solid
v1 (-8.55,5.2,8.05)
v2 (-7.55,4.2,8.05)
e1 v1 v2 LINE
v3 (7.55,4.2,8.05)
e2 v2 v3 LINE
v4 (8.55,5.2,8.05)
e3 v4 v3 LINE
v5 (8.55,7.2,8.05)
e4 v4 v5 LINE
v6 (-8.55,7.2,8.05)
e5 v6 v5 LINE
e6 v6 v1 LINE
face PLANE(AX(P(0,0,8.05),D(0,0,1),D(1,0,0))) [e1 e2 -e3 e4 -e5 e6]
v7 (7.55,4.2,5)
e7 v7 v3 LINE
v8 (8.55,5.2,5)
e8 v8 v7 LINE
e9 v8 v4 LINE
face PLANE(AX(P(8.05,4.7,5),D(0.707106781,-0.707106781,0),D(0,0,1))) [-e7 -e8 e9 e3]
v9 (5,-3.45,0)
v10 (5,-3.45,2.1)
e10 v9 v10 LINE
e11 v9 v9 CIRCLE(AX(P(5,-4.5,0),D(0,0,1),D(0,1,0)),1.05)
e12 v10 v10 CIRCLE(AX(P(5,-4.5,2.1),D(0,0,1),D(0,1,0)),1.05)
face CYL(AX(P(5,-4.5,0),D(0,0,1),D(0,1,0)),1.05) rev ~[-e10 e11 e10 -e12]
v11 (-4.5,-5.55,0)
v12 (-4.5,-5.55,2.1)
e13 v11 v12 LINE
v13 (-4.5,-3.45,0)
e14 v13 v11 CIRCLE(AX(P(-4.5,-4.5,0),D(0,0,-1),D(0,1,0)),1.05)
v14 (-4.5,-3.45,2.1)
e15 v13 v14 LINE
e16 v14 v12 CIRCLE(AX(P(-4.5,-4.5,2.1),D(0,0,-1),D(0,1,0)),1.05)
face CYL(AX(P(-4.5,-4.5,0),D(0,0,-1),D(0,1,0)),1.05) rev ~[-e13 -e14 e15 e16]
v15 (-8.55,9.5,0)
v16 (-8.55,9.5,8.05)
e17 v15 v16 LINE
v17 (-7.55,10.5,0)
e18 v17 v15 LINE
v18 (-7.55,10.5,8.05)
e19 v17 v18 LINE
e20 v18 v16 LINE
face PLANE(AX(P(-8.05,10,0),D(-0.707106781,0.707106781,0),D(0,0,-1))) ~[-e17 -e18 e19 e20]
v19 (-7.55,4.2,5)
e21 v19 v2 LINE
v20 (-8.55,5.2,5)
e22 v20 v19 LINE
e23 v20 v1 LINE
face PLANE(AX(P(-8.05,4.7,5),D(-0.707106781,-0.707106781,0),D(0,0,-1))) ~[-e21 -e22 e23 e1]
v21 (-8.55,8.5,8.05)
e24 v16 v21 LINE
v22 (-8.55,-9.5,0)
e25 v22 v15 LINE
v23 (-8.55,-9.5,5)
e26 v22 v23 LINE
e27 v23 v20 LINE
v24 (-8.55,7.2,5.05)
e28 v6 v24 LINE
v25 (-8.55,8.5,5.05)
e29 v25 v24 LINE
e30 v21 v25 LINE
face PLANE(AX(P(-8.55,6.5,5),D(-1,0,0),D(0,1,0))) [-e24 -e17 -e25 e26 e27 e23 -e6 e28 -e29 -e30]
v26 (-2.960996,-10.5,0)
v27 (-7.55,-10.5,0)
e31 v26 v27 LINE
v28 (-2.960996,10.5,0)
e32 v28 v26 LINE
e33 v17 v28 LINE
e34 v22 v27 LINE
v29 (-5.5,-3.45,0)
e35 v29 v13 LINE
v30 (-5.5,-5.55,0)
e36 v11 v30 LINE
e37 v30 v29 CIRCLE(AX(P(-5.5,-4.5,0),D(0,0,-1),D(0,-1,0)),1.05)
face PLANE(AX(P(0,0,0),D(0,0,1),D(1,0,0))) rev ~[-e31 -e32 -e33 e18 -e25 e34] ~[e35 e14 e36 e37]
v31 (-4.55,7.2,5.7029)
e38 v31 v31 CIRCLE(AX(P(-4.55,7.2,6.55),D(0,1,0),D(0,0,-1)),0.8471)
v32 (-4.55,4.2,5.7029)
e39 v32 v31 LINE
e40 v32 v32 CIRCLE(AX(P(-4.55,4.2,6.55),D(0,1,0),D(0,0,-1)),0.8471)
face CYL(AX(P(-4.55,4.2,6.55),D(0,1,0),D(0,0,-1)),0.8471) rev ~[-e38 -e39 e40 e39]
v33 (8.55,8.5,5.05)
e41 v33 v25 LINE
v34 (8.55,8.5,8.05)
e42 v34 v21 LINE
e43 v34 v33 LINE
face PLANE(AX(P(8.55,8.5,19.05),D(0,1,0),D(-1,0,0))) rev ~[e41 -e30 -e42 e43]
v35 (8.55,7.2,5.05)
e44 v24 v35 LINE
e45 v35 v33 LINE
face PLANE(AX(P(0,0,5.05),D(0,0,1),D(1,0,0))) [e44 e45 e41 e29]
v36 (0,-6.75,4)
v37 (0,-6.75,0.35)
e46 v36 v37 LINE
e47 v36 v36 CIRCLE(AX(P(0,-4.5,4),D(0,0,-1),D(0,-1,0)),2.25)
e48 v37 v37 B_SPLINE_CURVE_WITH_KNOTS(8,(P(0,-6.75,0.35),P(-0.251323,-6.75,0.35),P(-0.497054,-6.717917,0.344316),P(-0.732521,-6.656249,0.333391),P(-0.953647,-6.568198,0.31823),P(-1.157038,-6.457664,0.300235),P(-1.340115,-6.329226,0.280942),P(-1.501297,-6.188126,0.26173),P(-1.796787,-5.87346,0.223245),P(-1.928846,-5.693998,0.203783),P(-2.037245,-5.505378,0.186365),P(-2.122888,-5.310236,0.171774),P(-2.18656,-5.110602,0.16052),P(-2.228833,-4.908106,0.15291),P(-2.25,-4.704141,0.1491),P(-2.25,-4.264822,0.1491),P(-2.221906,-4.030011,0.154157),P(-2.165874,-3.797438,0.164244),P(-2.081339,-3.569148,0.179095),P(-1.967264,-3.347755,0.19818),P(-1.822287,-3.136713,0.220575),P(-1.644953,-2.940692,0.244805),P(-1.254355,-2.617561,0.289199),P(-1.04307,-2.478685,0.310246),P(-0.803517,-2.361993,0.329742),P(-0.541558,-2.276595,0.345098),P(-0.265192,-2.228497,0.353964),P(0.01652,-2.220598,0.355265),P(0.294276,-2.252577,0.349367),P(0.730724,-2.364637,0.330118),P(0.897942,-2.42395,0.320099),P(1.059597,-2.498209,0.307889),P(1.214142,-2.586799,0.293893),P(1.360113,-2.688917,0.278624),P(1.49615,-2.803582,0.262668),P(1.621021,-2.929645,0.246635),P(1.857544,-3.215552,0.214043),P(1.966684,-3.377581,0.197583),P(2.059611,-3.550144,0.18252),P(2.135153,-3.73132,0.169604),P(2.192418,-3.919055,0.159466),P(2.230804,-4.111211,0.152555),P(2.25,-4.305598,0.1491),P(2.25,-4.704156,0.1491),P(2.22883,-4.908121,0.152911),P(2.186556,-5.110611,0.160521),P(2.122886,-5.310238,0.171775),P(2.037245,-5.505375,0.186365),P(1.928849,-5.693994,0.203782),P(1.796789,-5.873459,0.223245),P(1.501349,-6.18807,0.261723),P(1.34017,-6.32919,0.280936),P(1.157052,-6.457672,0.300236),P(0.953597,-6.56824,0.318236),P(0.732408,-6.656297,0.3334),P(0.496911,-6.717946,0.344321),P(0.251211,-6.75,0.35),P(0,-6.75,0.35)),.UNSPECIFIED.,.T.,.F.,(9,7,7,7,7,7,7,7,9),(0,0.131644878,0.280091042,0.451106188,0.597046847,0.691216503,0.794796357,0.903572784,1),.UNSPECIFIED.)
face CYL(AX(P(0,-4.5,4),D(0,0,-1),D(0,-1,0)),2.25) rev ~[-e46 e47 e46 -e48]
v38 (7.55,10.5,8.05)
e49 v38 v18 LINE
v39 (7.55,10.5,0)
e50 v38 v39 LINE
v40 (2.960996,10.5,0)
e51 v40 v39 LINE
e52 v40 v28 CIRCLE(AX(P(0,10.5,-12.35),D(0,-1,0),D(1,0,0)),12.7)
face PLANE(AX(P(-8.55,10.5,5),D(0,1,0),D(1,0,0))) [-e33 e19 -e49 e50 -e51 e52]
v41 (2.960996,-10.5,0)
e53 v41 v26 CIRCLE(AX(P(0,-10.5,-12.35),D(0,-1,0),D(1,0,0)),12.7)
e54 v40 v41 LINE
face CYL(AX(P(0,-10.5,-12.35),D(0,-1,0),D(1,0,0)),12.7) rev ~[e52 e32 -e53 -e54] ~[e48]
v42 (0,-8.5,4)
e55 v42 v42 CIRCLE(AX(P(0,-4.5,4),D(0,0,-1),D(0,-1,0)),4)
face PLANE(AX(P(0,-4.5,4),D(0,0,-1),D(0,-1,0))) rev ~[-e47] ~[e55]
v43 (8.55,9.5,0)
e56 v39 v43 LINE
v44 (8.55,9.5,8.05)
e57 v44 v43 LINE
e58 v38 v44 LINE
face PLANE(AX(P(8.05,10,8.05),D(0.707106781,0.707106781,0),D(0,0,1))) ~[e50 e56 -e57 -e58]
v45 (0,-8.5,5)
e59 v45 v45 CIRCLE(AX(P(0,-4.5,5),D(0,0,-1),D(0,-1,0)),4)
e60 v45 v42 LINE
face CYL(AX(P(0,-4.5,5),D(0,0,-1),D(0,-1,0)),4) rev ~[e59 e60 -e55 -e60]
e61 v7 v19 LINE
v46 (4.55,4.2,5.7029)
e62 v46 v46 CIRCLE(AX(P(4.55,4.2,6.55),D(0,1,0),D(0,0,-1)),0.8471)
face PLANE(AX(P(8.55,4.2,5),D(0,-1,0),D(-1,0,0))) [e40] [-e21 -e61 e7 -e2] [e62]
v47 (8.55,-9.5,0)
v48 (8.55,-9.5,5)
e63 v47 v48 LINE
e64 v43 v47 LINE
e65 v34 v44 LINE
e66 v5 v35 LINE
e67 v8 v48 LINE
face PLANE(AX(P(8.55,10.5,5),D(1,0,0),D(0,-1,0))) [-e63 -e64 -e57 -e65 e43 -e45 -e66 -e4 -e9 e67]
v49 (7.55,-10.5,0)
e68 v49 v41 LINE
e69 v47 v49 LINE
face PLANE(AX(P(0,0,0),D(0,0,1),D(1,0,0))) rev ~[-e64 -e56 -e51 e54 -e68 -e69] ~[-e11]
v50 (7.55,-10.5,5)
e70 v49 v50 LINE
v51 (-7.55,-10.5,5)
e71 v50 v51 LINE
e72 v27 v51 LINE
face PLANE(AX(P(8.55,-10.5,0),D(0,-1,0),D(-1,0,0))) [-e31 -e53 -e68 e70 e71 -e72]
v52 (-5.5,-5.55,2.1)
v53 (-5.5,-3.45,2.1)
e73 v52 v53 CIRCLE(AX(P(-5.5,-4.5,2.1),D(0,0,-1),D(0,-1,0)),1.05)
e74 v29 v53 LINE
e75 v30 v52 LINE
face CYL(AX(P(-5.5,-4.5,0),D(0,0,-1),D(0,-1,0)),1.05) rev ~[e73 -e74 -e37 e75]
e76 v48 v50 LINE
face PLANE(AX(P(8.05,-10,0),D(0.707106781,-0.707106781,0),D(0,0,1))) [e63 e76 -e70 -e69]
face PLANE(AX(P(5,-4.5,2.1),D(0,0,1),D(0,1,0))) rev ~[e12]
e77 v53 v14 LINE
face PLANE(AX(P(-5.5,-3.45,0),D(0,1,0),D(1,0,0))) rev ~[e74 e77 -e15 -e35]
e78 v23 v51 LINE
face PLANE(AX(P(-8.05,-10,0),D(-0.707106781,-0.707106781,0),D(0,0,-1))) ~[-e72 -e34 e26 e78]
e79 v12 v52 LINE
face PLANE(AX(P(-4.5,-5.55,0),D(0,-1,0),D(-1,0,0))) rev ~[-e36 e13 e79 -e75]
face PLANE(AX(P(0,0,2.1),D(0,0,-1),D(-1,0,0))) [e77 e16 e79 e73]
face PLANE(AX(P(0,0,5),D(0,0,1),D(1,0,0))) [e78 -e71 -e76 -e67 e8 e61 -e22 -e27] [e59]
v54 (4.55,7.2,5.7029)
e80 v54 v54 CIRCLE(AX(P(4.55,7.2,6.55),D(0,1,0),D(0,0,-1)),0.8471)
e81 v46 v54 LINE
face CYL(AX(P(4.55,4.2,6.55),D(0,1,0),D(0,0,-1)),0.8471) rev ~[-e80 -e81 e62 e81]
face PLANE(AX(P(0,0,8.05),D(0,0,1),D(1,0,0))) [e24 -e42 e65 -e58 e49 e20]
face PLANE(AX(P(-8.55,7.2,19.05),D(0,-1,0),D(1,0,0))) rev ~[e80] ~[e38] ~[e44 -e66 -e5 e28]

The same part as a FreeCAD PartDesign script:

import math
import FreeCAD as App
import Part
import Sketcher

V = App.Vector
Q = App.Units.Quantity


def edges_at(feature, points):
    """Names of the edges that pass closest to the given points."""
    edges = feature.Shape.Edges
    near = lambda p: min(range(len(edges)), key=lambda i: edges[i].distToShape(Part.Vertex(*p))[0])
    return sorted({f"Edge{near(p) + 1}" for p in points})

doc = App.newDocument("Part")
body = doc.addObject("PartDesign::Body", "Body")

sketch1 = doc.addObject("Sketcher::SketchObject", "Sketch")
body.addObject(sketch1)
sketch1.AttachmentSupport = (doc.XY_Plane, [""])
sketch1.MapMode = "FlatFace"
sketch1.addGeometry(Part.LineSegment(V(9, 10, 0), V(-9, 10, 0)), False)
sketch1.addGeometry(Part.LineSegment(V(-9, 10, 0), V(-9, -10, 0)), False)
sketch1.addGeometry(Part.LineSegment(V(-9, -10, 0), V(9, -10, 0)), False)
sketch1.addGeometry(Part.LineSegment(V(9, -10, 0), V(9, 10, 0)), False)
sketch1.addConstraint(Sketcher.Constraint("Coincident", 0, 2, 1, 1))
sketch1.addConstraint(Sketcher.Constraint("Coincident", 1, 2, 2, 1))
sketch1.addConstraint(Sketcher.Constraint("Coincident", 2, 2, 3, 1))
sketch1.addConstraint(Sketcher.Constraint("Coincident", 3, 2, 0, 1))
sketch1.addConstraint(Sketcher.Constraint("Horizontal", 0))
sketch1.addConstraint(Sketcher.Constraint("Vertical", 1))
sketch1.addConstraint(Sketcher.Constraint("Horizontal", 2))
sketch1.addConstraint(Sketcher.Constraint("Vertical", 3))
sketch1.addConstraint(Sketcher.Constraint("Symmetric", 0, 2, 2, 2, -1, 1))
sketch1.addConstraint(Sketcher.Constraint("DistanceY", 1, 2, 1, 1, Q("21 mm")))
sketch1.addConstraint(Sketcher.Constraint("DistanceX", 0, 2, 0, 1, Q("17.1 mm")))
pad1 = doc.addObject("PartDesign::Pad", "Pad")
body.addObject(pad1)
pad1.Profile = sketch1
pad1.Length = 5

sketch2 = doc.addObject("Sketcher::SketchObject", "Sketch001")
body.addObject(sketch2)
sketch2.AttachmentSupport = (doc.XY_Plane, [""])
sketch2.MapMode = "FlatFace"
sketch2.AttachmentOffset = App.Placement(V(0, 0, 5), App.Rotation())
sketch2.addGeometry(Part.Circle(V(0, -4.5, 0), V(0, 0, 1), 2.2), False)
sketch2.addConstraint(Sketcher.Constraint("PointOnObject", 0, 3, -2))
sketch2.addConstraint(Sketcher.Constraint("Diameter", 0, Q("4.5 mm")))
sketch2.addConstraint(Sketcher.Constraint("DistanceY", 0, 3, -1, 1, Q("4.5 mm")))
doc.recompute()
hole = doc.addObject("PartDesign::Hole", "Hole")
body.addObject(hole)
hole.Profile = sketch2
hole.ThreadType = "None"
hole.Diameter = 4.5
hole.DepthType = "Dimension"
hole.Depth = 5
hole.DrillPoint = "Flat"
hole.HoleCutType = "Counterbore"
hole.HoleCutDiameter = 8
hole.HoleCutDepth = 1

sketch3 = doc.addObject("Sketcher::SketchObject", "Sketch002")
body.addObject(sketch3)
sketch3.AttachmentSupport = (doc.XY_Plane, [""])
sketch3.MapMode = "FlatFace"
sketch3.AttachmentOffset = App.Placement(V(0, 0, 5), App.Rotation())
sketch3.addGeometry(Part.LineSegment(V(9, 10, 0), V(-9, 10, 0)), False)
sketch3.addGeometry(Part.LineSegment(V(-9, 10, 0), V(-9, 4, 0)), False)
sketch3.addGeometry(Part.LineSegment(V(-9, 4, 0), V(9, 4, 0)), False)
sketch3.addGeometry(Part.LineSegment(V(9, 4, 0), V(9, 10, 0)), False)
sketch3.addConstraint(Sketcher.Constraint("Coincident", 0, 2, 1, 1))
sketch3.addConstraint(Sketcher.Constraint("Coincident", 1, 2, 2, 1))
sketch3.addConstraint(Sketcher.Constraint("Coincident", 2, 2, 3, 1))
sketch3.addConstraint(Sketcher.Constraint("Coincident", 3, 2, 0, 1))
sketch3.addConstraint(Sketcher.Constraint("Horizontal", 0))
sketch3.addConstraint(Sketcher.Constraint("Vertical", 1))
sketch3.addConstraint(Sketcher.Constraint("Horizontal", 2))
sketch3.addConstraint(Sketcher.Constraint("Vertical", 3))
sketch3.addConstraint(Sketcher.Constraint("DistanceX", 0, 2, 0, 1, Q("17.1 mm")))
sketch3.addConstraint(Sketcher.Constraint("DistanceY", 1, 2, 1, 1, Q("6.3 mm")))
sketch3.addConstraint(Sketcher.Constraint("DistanceY", -1, 1, 0, 2, Q("10.5 mm")))
sketch3.addConstraint(Sketcher.Constraint("DistanceX", 0, 2, -1, 1, Q("8.55 mm")))
pad2 = doc.addObject("PartDesign::Pad", "Pad001")
body.addObject(pad2)
pad2.Profile = sketch3
pad2.Length = 14.05

sketch4 = doc.addObject("Sketcher::SketchObject", "Sketch003")
body.addObject(sketch4)
sketch4.AttachmentSupport = (doc.XY_Plane, [""])
sketch4.MapMode = "FlatFace"
sketch4.AttachmentOffset = App.Placement(V(0, 0, 19.05), App.Rotation())
sketch4.addGeometry(Part.LineSegment(V(-8.6, 8.5, 0), V(8.6, 8.5, 0)), False)
sketch4.addGeometry(Part.LineSegment(V(8.6, 8.5, 0), V(8.6, 10.5, 0)), False)
sketch4.addGeometry(Part.LineSegment(V(8.6, 10.5, 0), V(-8.6, 10.5, 0)), False)
sketch4.addGeometry(Part.LineSegment(V(-8.6, 10.5, 0), V(-8.6, 8.5, 0)), False)
sketch4.addGeometry(Part.LineSegment(V(8.6, 4.2, 0), V(8.6, 7.2, 0)), False)
sketch4.addGeometry(Part.LineSegment(V(8.6, 7.2, 0), V(-8.6, 7.2, 0)), False)
sketch4.addGeometry(Part.LineSegment(V(-8.6, 7.2, 0), V(-8.6, 4.2, 0)), False)
sketch4.addGeometry(Part.LineSegment(V(-8.6, 4.2, 0), V(8.6, 4.2, 0)), False)
sketch4.addConstraint(Sketcher.Constraint("Coincident", 0, 2, 1, 1))
sketch4.addConstraint(Sketcher.Constraint("Coincident", 1, 2, 2, 1))
sketch4.addConstraint(Sketcher.Constraint("Coincident", 2, 2, 3, 1))
sketch4.addConstraint(Sketcher.Constraint("Coincident", 3, 2, 0, 1))
sketch4.addConstraint(Sketcher.Constraint("Coincident", 4, 2, 5, 1))
sketch4.addConstraint(Sketcher.Constraint("Coincident", 5, 2, 6, 1))
sketch4.addConstraint(Sketcher.Constraint("Coincident", 6, 2, 7, 1))
sketch4.addConstraint(Sketcher.Constraint("Coincident", 7, 2, 4, 1))
sketch4.addConstraint(Sketcher.Constraint("Horizontal", 0))
sketch4.addConstraint(Sketcher.Constraint("Vertical", 1))
sketch4.addConstraint(Sketcher.Constraint("Horizontal", 2))
sketch4.addConstraint(Sketcher.Constraint("Vertical", 3))
sketch4.addConstraint(Sketcher.Constraint("Vertical", 4))
sketch4.addConstraint(Sketcher.Constraint("Horizontal", 5))
sketch4.addConstraint(Sketcher.Constraint("Vertical", 6))
sketch4.addConstraint(Sketcher.Constraint("Horizontal", 7))
sketch4.addConstraint(Sketcher.Constraint("Vertical", 1, 2, 4, 2))
sketch4.addConstraint(Sketcher.Constraint("Vertical", 3, 2, 5, 2))
sketch4.addConstraint(Sketcher.Constraint("DistanceY", 4, 1, 4, 2, Q("3 mm")))
sketch4.addConstraint(Sketcher.Constraint("DistanceX", 0, 1, 0, 2, Q("17.1 mm")))
sketch4.addConstraint(Sketcher.Constraint("DistanceY", 4, 2, 0, 2, Q("1.3 mm")))
sketch4.addConstraint(Sketcher.Constraint("DistanceY", 1, 1, 1, 2, Q("2 mm")))
sketch4.addConstraint(Sketcher.Constraint("DistanceY", -1, 1, 0, 2, Q("8.5 mm")))
sketch4.addConstraint(Sketcher.Constraint("DistanceX", -1, 1, 0, 2, Q("8.55 mm")))
pocket1 = doc.addObject("PartDesign::Pocket", "Pocket")
body.addObject(pocket1)
pocket1.Profile = sketch4
pocket1.Length = 11

sketch5 = doc.addObject("Sketcher::SketchObject", "Sketch004")
body.addObject(sketch5)
sketch5.AttachmentSupport = (doc.XY_Plane, [""])
sketch5.MapMode = "FlatFace"
sketch5.AttachmentOffset = App.Placement(V(0, 0, 19.05), App.Rotation())
sketch5.addGeometry(Part.LineSegment(V(8.6, 7.2, 0), V(8.6, 8.5, 0)), False)
sketch5.addGeometry(Part.LineSegment(V(8.6, 8.5, 0), V(-8.6, 8.5, 0)), False)
sketch5.addGeometry(Part.LineSegment(V(-8.6, 8.5, 0), V(-8.6, 7.2, 0)), False)
sketch5.addGeometry(Part.LineSegment(V(-8.6, 7.2, 0), V(8.6, 7.2, 0)), False)
sketch5.addConstraint(Sketcher.Constraint("Coincident", 0, 2, 1, 1))
sketch5.addConstraint(Sketcher.Constraint("Coincident", 1, 2, 2, 1))
sketch5.addConstraint(Sketcher.Constraint("Coincident", 2, 2, 3, 1))
sketch5.addConstraint(Sketcher.Constraint("Coincident", 3, 2, 0, 1))
sketch5.addConstraint(Sketcher.Constraint("Vertical", 0))
sketch5.addConstraint(Sketcher.Constraint("Horizontal", 1))
sketch5.addConstraint(Sketcher.Constraint("Vertical", 2))
sketch5.addConstraint(Sketcher.Constraint("Horizontal", 3))
sketch5.addConstraint(Sketcher.Constraint("DistanceX", 1, 2, 1, 1, Q("17.1 mm")))
sketch5.addConstraint(Sketcher.Constraint("DistanceY", 0, 1, 0, 2, Q("1.3 mm")))
sketch5.addConstraint(Sketcher.Constraint("DistanceY", -1, 1, 0, 2, Q("8.5 mm")))
sketch5.addConstraint(Sketcher.Constraint("DistanceX", -1, 1, 0, 2, Q("8.55 mm")))
pocket2 = doc.addObject("PartDesign::Pocket", "Pocket001")
body.addObject(pocket2)
pocket2.Profile = sketch5
pocket2.Length = 14

sketch6 = doc.addObject("Sketcher::SketchObject", "Sketch005")
body.addObject(sketch6)
sketch6.AttachmentSupport = (doc.XZ_Plane, [""])
sketch6.MapMode = "FlatFace"
sketch6.AttachmentOffset = App.Placement(V(0, 0, -4.2), App.Rotation())
sketch6.addGeometry(Part.Circle(V(-4.5, 6.5, 0), V(0, 0, 1), 0.8), False)
sketch6.addGeometry(Part.Circle(V(4.5, 6.5, 0), V(0, 0, 1), 0.8), False)
sketch6.addConstraint(Sketcher.Constraint("Equal", 0, 1))
sketch6.addConstraint(Sketcher.Constraint("Symmetric", 0, 3, 1, 3, -2))
sketch6.addConstraint(Sketcher.Constraint("Diameter", 0, Q("1.6942 mm")))
sketch6.addConstraint(Sketcher.Constraint("DistanceX", 0, 3, 1, 3, Q("9.1 mm")))
sketch6.addConstraint(Sketcher.Constraint("DistanceY", -1, 1, 0, 3, Q("6.55 mm")))
doc.recompute()
hole2 = doc.addObject("PartDesign::Hole", "Hole001")
body.addObject(hole2)
hole2.Profile = sketch6
hole2.ThreadType = "None"
hole2.Diameter = 1.6942
hole2.DepthType = "Dimension"
hole2.Depth = 3
hole2.DrillPoint = "Flat"

sketch7 = doc.addObject("Sketcher::SketchObject", "Sketch006")
body.addObject(sketch7)
sketch7.AttachmentSupport = (doc.XY_Plane, [""])
sketch7.MapMode = "FlatFace"
sketch7.addGeometry(Part.Circle(V(5, -4.5, 0), V(0, 0, 1), 1.1), False)
sketch7.addConstraint(Sketcher.Constraint("Diameter", 0, Q("2.1 mm")))
sketch7.addConstraint(Sketcher.Constraint("DistanceX", -1, 1, 0, 3, Q("5 mm")))
sketch7.addConstraint(Sketcher.Constraint("DistanceY", 0, 3, -1, 1, Q("4.5 mm")))
doc.recompute()
hole3 = doc.addObject("PartDesign::Hole", "Hole002")
body.addObject(hole3)
hole3.Profile = sketch7
hole3.ThreadType = "None"
hole3.Diameter = 2.1
hole3.DepthType = "Dimension"
hole3.Depth = 2.1
hole3.DrillPoint = "Flat"
hole3.Reversed = True

sketch8 = doc.addObject("Sketcher::SketchObject", "Sketch007")
body.addObject(sketch8)
sketch8.AttachmentSupport = (doc.XY_Plane, [""])
sketch8.MapMode = "FlatFace"
sketch8.addGeometry(Part.ArcOfCircle(Part.Circle(V(-5.5, -4.5, 0), V(0, 0, 1), 1), math.radians(90), math.radians(270)), False)
sketch8.addGeometry(Part.LineSegment(V(-5.5, -3.5, 0), V(-4.5, -3.5, 0)), False)
sketch8.addGeometry(Part.ArcOfCircle(Part.Circle(V(-4.5, -4.5, 0), V(0, 0, 1), 1), math.radians(-90), math.radians(90)), False)
sketch8.addGeometry(Part.LineSegment(V(-4.5, -5.5, 0), V(-5.5, -5.5, 0)), False)
sketch8.addConstraint(Sketcher.Constraint("Tangent", 0, 1, 1, 1))
sketch8.addConstraint(Sketcher.Constraint("Tangent", 1, 2, 2, 2))
sketch8.addConstraint(Sketcher.Constraint("Tangent", 2, 1, 3, 1))
sketch8.addConstraint(Sketcher.Constraint("Tangent", 3, 2, 0, 2))
sketch8.addConstraint(Sketcher.Constraint("Horizontal", 1))
sketch8.addConstraint(Sketcher.Constraint("Horizontal", 3))
sketch8.addConstraint(Sketcher.Constraint("DistanceX", 1, 1, 1, 2, Q("1 mm")))
sketch8.addConstraint(Sketcher.Constraint("Radius", 0, Q("1.05 mm")))
sketch8.addConstraint(Sketcher.Constraint("DistanceX", 0, 3, -1, 1, Q("5.5 mm")))
sketch8.addConstraint(Sketcher.Constraint("DistanceY", 0, 3, -1, 1, Q("4.5 mm")))
pocket3 = doc.addObject("PartDesign::Pocket", "Pocket002")
body.addObject(pocket3)
pocket3.Profile = sketch8
pocket3.Length = 2.1
pocket3.Reversed = True
doc.recompute()

chamfer = doc.addObject("PartDesign::Chamfer", "Chamfer")
body.addObject(chamfer)
chamfer.Base = (pocket3, edges_at(pocket3, [
    (-8.55, 4.2, 6.525),
    (8.55, 4.2, 6.525),
    (8.55, 10.5, 4.025),
    (-8.55, 10.5, 4.025),
    (8.55, -10.5, 2.5),
    (-8.55, -10.5, 2.5),
]))
chamfer.Size = 1

sketch9 = doc.addObject("Sketcher::SketchObject", "Sketch008")
body.addObject(sketch9)
sketch9.AttachmentSupport = (doc.XZ_Plane, [""])
sketch9.MapMode = "FlatFace"
sketch9.AttachmentOffset = App.Placement(V(0, 0, 10.5), App.Rotation())
sketch9.addGeometry(Part.Circle(V(0, -12, 0), V(0, 0, 1), 13), False)
sketch9.addConstraint(Sketcher.Constraint("PointOnObject", 0, 3, -2))
sketch9.addConstraint(Sketcher.Constraint("Diameter", 0, Q("25.4 mm")))
sketch9.addConstraint(Sketcher.Constraint("DistanceY", 0, 3, -1, 1, Q("12.35 mm")))
pocket4 = doc.addObject("PartDesign::Pocket", "Pocket003")
body.addObject(pocket4)
pocket4.Profile = sketch9
pocket4.Length = 21

doc.recompute()
